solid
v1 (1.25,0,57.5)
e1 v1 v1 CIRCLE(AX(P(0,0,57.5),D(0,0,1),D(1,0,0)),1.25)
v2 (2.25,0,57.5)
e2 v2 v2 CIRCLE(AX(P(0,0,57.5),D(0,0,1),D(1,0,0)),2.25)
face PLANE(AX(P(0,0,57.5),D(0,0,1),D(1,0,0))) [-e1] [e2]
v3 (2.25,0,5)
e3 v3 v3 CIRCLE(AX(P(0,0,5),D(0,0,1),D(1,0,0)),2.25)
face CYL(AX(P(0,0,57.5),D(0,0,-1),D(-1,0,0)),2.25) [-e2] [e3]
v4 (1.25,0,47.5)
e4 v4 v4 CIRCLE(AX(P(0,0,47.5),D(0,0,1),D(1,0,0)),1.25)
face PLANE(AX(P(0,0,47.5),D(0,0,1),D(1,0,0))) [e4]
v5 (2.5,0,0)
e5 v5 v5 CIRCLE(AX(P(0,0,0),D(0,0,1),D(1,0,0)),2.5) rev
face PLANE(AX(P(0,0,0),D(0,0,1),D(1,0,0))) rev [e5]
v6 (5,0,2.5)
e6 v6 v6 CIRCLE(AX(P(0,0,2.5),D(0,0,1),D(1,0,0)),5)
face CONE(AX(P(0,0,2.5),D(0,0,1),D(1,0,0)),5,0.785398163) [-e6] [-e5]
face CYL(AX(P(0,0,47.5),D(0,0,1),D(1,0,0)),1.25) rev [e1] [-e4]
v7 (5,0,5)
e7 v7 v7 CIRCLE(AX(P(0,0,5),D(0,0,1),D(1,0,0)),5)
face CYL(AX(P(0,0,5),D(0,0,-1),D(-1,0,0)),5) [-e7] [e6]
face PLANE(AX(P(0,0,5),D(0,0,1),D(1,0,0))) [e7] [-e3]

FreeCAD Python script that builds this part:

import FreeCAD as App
import Part
import Sketcher


def edges_at(feature, points):
    """Names of the edges that pass closest to the given points."""
    edges = feature.Shape.Edges
    near = lambda p: min(range(len(edges)), key=lambda i: edges[i].distToShape(Part.Vertex(*p))[0])
    return sorted({f"Edge{near(p) + 1}" for p in points})

doc = App.newDocument("Part")
body = doc.addObject("PartDesign::Body", "Body")

# Sketch on XY plane
sketch1 = body.newObject("Sketcher::SketchObject", "Sketch")
sketch1.AttachmentSupport = (doc.getObject("XY_Plane"), [""])
sketch1.MapMode = "FlatFace"
sketch1.addGeometry(Part.Circle(App.Vector(0, 0, 0), App.Vector(0, 0, 1), 5), False)
sketch1.addConstraint(Sketcher.Constraint("Coincident", 0, 3, -1, 1))
sketch1.addConstraint(Sketcher.Constraint("Diameter", 0, 10.0))
pad1 = body.newObject("PartDesign::Pad", "Pad")
pad1.Profile = sketch1
pad1.Length = 5

# Sketch on XY plane
sketch2 = body.newObject("Sketcher::SketchObject", "Sketch001")
sketch2.AttachmentSupport = (doc.getObject("XY_Plane"), [""])
sketch2.MapMode = "FlatFace"
sketch2.AttachmentOffset = App.Placement(App.Vector(0, 0, 5), App.Rotation())
sketch2.addGeometry(Part.Circle(App.Vector(0, 0, 0), App.Vector(0, 0, 1), 2.25), False)
sketch2.addConstraint(Sketcher.Constraint("Coincident", 0, 3, -1, 1))
sketch2.addConstraint(Sketcher.Constraint("Diameter", 0, 4.5))
pad2 = body.newObject("PartDesign::Pad", "Pad001")
pad2.Profile = sketch2
pad2.Length = 52.5

# Sketch on XY plane
sketch3 = body.newObject("Sketcher::SketchObject", "Sketch002")
sketch3.AttachmentSupport = (doc.getObject("XY_Plane"), [""])
sketch3.MapMode = "FlatFace"
sketch3.AttachmentOffset = App.Placement(App.Vector(0, 0, 57.5), App.Rotation())
sketch3.addGeometry(Part.Circle(App.Vector(0, 0, 0), App.Vector(0, 0, 1), 1.25), False)
sketch3.addConstraint(Sketcher.Constraint("Coincident", 0, 3, -1, 1))
sketch3.addConstraint(Sketcher.Constraint("Diameter", 0, 2.5))
pocket1 = body.newObject("PartDesign::Pocket", "Pocket")
pocket1.Profile = sketch3
pocket1.Length = 10
doc.recompute()

chamfer = body.newObject("PartDesign::Chamfer", "Chamfer")
chamfer.Base = (pocket1, edges_at(pocket1, [(-5, 0, 0)]))
chamfer.Size = 2.5

doc.recompute()
